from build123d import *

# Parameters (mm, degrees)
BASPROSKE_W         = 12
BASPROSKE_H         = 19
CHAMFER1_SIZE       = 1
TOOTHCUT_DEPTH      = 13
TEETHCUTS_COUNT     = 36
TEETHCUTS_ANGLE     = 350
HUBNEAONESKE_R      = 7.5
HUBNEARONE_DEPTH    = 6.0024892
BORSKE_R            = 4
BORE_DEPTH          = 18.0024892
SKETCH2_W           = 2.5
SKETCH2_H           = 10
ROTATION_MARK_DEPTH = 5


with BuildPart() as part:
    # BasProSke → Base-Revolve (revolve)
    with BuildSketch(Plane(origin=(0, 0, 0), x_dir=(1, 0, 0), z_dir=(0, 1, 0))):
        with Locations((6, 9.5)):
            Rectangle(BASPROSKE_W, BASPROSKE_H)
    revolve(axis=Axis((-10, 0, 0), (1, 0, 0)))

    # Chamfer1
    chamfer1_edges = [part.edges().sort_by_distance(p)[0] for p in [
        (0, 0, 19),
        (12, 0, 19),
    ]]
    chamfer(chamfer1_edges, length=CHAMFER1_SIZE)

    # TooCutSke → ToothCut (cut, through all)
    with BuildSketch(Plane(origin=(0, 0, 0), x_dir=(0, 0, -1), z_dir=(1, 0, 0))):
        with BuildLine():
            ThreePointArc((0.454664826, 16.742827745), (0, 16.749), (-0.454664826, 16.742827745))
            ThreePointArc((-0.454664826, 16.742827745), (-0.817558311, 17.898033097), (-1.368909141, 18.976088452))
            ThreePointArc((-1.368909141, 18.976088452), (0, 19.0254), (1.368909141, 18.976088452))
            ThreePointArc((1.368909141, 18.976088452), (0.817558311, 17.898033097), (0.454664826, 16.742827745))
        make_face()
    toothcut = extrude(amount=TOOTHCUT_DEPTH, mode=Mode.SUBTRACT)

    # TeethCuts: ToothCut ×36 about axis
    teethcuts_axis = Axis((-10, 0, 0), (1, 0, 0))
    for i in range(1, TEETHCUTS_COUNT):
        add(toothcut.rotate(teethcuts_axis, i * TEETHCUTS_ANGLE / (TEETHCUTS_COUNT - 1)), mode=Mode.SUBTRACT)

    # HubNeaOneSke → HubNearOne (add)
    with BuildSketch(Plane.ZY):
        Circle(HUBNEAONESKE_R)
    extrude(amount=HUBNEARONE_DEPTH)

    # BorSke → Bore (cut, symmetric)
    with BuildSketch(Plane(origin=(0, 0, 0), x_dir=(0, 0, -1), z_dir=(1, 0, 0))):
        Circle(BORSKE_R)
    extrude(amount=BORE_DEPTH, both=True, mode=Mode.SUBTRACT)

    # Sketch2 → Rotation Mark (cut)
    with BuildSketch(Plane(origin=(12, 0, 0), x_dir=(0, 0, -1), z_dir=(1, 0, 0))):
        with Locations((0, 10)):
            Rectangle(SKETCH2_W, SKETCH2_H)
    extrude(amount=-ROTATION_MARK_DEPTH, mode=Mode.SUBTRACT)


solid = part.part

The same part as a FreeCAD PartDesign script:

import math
import FreeCAD as App
import Part
import Sketcher
from FreeCAD import Vector


def edges_at(feature, points):
    """Names of the edges that pass closest to the given points."""
    edges = feature.Shape.Edges
    near = lambda p: min(range(len(edges)), key=lambda i: edges[i].distToShape(Part.Vertex(*p))[0])
    return sorted({f"Edge{near(p) + 1}" for p in points})

doc = App.newDocument("Part")
body = doc.addObject("PartDesign::Body", "Body")

# Sketch on XZ plane
sketch1 = doc.addObject("Sketcher::SketchObject", "Sketch")
body.addObject(sketch1)
sketch1.AttachmentSupport = (doc.XZ_Plane, [""])
sketch1.MapMode = "FlatFace"
sketch1.addGeometry([
    Part.LineSegment(Vector(0, -19, 0), Vector(0, 0, 0)),
    Part.LineSegment(Vector(0, 0, 0), Vector(12, 0, 0)),
    Part.LineSegment(Vector(12, 0, 0), Vector(12, -19, 0)),
    Part.LineSegment(Vector(12, -19, 0), Vector(0, -19, 0)),
], False)
sketch1.addConstraint([
    Sketcher.Constraint("Coincident", 0, 2, 1, 1),
    Sketcher.Constraint("Coincident", 1, 2, 2, 1),
    Sketcher.Constraint("Coincident", 2, 2, 3, 1),
    Sketcher.Constraint("Coincident", 3, 2, 0, 1),
    Sketcher.Constraint("Vertical", 0),
    Sketcher.Constraint("Horizontal", 1),
    Sketcher.Constraint("Vertical", 2),
    Sketcher.Constraint("Horizontal", 3),
    Sketcher.Constraint("Coincident", 0, 2, -1, 1),
    Sketcher.Constraint("DistanceX", 1, 1, 1, 2, 12.0),
    Sketcher.Constraint("DistanceY", 0, 1, 0, 2, 19.0),
])
revolution = doc.addObject("PartDesign::Revolution", "Revolution")
body.addObject(revolution)
revolution.Profile = sketch1
revolution.ReferenceAxis = (sketch1, ["H_Axis"])
revolution.Angle = 360
doc.recompute()

chamfer = doc.addObject("PartDesign::Chamfer", "Chamfer")
body.addObject(chamfer)
chamfer.Base = (revolution, edges_at(revolution, [(0, 0, 19), (12, 0, 19)]))
chamfer.Size = 1

# Sketch on YZ plane
sketch2 = doc.addObject("Sketcher::SketchObject", "Sketch001")
body.addObject(sketch2)
sketch2.AttachmentSupport = (doc.YZ_Plane, [""])
sketch2.MapMode = "FlatFace"
sketch2.addGeometry([
    Part.ArcOfCircle(Part.Circle(Vector(0, 0, 0), Vector(0, 0, 1), 16.7), math.radians(-1.56), math.radians(1.56)),
    Part.ArcOfCircle(Part.Circle(Vector(15.2, -7.5, 0), Vector(0, 0, 1), 7.2), math.radians(58.09), math.radians(77.38)),
    Part.ArcOfCircle(Part.Circle(Vector(0, 0, 0), Vector(0, 0, 1), 19), math.radians(-4.13), math.radians(4.13)),
    Part.ArcOfCircle(Part.Circle(Vector(15.2, 7.5, 0), Vector(0, 0, 1), 7.2), math.radians(-77.38), math.radians(-58.09)),
], False)
sketch2.addConstraint([
    Sketcher.Constraint("Coincident", 0, 1, 1, 2),
    Sketcher.Constraint("Coincident", 1, 1, 2, 1),
    Sketcher.Constraint("Coincident", 2, 2, 3, 2),
    Sketcher.Constraint("Coincident", 3, 1, 0, 2),
    Sketcher.Constraint("Coincident", 0, 3, -1, 1),
    Sketcher.Constraint("Coincident", 2, 3, -1, 1),
    Sketcher.Constraint("Equal", 1, 3),
    Sketcher.Constraint("Symmetric", 1, 3, 3, 3, -1),
    Sketcher.Constraint("Radius", 1, 7.2),
    Sketcher.Constraint("Radius", 0, 16.749),
    Sketcher.Constraint("Radius", 2, 19.0254),
    Sketcher.Constraint("DistanceY", 1, 3, -1, 1, 7.480829),
    Sketcher.Constraint("DistanceX", -1, 1, 1, 1, 18.976088),
])
pocket1 = doc.addObject("PartDesign::Pocket", "Pocket")
body.addObject(pocket1)
pocket1.Profile = sketch2
pocket1.Type = "ThroughAll"
pocket1.Reversed = True
doc.recompute()

polarpattern = doc.addObject("PartDesign::PolarPattern", "PolarPattern")
body.addObject(polarpattern)
polarpattern.Originals = [pocket1]
polarpattern.Axis = (doc.X_Axis, [""])
polarpattern.Angle = 360
polarpattern.Occurrences = 36
body.Tip = polarpattern

# Sketch on YZ plane
sketch3 = doc.addObject("Sketcher::SketchObject", "Sketch002")
body.addObject(sketch3)
sketch3.AttachmentSupport = (doc.YZ_Plane, [""])
sketch3.MapMode = "FlatFace"
sketch3.addGeometry(Part.Circle(Vector(0, 0, 0), Vector(0, 0, 1), 8), False)
sketch3.addConstraint([
    Sketcher.Constraint("Coincident", 0, 3, -1, 1),
    Sketcher.Constraint("Diameter", 0, 15.0),
])
pad1 = doc.addObject("PartDesign::Pad", "Pad")
body.addObject(pad1)
pad1.Profile = sketch3
pad1.Length = 6.002489
pad1.Reversed = True

# Sketch on YZ plane
sketch4 = doc.addObject("Sketcher::SketchObject", "Sketch003")
body.addObject(sketch4)
sketch4.AttachmentSupport = (doc.YZ_Plane, [""])
sketch4.MapMode = "FlatFace"
sketch4.addGeometry(Part.Circle(Vector(0, 0, 0), Vector(0, 0, 1), 4), False)
sketch4.addConstraint([
    Sketcher.Constraint("Coincident", 0, 3, -1, 1),
    Sketcher.Constraint("Diameter", 0, 8.0),
])
pocket2 = doc.addObject("PartDesign::Pocket", "Pocket001")
body.addObject(pocket2)
pocket2.Profile = sketch4
pocket2.Length = 36.004978
pocket2.Midplane = True

# Sketch on YZ plane
sketch5 = doc.addObject("Sketcher::SketchObject", "Sketch004")
body.addObject(sketch5)
sketch5.AttachmentSupport = (doc.YZ_Plane, [""])
sketch5.MapMode = "FlatFace"
sketch5.AttachmentOffset = App.Placement(Vector(0, 0, 12), App.Rotation())
sketch5.addGeometry([
    Part.LineSegment(Vector(15, 1.2, 0), Vector(5, 1.2, 0)),
    Part.LineSegment(Vector(5, 1.2, 0), Vector(5, -1.2, 0)),
    Part.LineSegment(Vector(5, -1.2, 0), Vector(15, -1.2, 0)),
    Part.LineSegment(Vector(15, -1.2, 0), Vector(15, 1.2, 0)),
], False)
sketch5.addConstraint([
    Sketcher.Constraint("Coincident", 0, 2, 1, 1),
    Sketcher.Constraint("Coincident", 1, 2, 2, 1),
    Sketcher.Constraint("Coincident", 2, 2, 3, 1),
    Sketcher.Constraint("Coincident", 3, 2, 0, 1),
    Sketcher.Constraint("Horizontal", 0),
    Sketcher.Constraint("Vertical", 1),
    Sketcher.Constraint("Horizontal", 2),
    Sketcher.Constraint("Vertical", 3),
    Sketcher.Constraint("DistanceX", 0, 2, 0, 1, 10.0),
    Sketcher.Constraint("DistanceY", 1, 2, 1, 1, 2.5),
    Sketcher.Constraint("DistanceX", -1, 1, 0, 2, 5.0),
    Sketcher.Constraint("DistanceY", -1, 1, 0, 2, 1.25),
])
pocket3 = doc.addObject("PartDesign::Pocket", "Pocket002")
body.addObject(pocket3)
pocket3.Profile = sketch5
pocket3.Length = 5

doc.recompute()
